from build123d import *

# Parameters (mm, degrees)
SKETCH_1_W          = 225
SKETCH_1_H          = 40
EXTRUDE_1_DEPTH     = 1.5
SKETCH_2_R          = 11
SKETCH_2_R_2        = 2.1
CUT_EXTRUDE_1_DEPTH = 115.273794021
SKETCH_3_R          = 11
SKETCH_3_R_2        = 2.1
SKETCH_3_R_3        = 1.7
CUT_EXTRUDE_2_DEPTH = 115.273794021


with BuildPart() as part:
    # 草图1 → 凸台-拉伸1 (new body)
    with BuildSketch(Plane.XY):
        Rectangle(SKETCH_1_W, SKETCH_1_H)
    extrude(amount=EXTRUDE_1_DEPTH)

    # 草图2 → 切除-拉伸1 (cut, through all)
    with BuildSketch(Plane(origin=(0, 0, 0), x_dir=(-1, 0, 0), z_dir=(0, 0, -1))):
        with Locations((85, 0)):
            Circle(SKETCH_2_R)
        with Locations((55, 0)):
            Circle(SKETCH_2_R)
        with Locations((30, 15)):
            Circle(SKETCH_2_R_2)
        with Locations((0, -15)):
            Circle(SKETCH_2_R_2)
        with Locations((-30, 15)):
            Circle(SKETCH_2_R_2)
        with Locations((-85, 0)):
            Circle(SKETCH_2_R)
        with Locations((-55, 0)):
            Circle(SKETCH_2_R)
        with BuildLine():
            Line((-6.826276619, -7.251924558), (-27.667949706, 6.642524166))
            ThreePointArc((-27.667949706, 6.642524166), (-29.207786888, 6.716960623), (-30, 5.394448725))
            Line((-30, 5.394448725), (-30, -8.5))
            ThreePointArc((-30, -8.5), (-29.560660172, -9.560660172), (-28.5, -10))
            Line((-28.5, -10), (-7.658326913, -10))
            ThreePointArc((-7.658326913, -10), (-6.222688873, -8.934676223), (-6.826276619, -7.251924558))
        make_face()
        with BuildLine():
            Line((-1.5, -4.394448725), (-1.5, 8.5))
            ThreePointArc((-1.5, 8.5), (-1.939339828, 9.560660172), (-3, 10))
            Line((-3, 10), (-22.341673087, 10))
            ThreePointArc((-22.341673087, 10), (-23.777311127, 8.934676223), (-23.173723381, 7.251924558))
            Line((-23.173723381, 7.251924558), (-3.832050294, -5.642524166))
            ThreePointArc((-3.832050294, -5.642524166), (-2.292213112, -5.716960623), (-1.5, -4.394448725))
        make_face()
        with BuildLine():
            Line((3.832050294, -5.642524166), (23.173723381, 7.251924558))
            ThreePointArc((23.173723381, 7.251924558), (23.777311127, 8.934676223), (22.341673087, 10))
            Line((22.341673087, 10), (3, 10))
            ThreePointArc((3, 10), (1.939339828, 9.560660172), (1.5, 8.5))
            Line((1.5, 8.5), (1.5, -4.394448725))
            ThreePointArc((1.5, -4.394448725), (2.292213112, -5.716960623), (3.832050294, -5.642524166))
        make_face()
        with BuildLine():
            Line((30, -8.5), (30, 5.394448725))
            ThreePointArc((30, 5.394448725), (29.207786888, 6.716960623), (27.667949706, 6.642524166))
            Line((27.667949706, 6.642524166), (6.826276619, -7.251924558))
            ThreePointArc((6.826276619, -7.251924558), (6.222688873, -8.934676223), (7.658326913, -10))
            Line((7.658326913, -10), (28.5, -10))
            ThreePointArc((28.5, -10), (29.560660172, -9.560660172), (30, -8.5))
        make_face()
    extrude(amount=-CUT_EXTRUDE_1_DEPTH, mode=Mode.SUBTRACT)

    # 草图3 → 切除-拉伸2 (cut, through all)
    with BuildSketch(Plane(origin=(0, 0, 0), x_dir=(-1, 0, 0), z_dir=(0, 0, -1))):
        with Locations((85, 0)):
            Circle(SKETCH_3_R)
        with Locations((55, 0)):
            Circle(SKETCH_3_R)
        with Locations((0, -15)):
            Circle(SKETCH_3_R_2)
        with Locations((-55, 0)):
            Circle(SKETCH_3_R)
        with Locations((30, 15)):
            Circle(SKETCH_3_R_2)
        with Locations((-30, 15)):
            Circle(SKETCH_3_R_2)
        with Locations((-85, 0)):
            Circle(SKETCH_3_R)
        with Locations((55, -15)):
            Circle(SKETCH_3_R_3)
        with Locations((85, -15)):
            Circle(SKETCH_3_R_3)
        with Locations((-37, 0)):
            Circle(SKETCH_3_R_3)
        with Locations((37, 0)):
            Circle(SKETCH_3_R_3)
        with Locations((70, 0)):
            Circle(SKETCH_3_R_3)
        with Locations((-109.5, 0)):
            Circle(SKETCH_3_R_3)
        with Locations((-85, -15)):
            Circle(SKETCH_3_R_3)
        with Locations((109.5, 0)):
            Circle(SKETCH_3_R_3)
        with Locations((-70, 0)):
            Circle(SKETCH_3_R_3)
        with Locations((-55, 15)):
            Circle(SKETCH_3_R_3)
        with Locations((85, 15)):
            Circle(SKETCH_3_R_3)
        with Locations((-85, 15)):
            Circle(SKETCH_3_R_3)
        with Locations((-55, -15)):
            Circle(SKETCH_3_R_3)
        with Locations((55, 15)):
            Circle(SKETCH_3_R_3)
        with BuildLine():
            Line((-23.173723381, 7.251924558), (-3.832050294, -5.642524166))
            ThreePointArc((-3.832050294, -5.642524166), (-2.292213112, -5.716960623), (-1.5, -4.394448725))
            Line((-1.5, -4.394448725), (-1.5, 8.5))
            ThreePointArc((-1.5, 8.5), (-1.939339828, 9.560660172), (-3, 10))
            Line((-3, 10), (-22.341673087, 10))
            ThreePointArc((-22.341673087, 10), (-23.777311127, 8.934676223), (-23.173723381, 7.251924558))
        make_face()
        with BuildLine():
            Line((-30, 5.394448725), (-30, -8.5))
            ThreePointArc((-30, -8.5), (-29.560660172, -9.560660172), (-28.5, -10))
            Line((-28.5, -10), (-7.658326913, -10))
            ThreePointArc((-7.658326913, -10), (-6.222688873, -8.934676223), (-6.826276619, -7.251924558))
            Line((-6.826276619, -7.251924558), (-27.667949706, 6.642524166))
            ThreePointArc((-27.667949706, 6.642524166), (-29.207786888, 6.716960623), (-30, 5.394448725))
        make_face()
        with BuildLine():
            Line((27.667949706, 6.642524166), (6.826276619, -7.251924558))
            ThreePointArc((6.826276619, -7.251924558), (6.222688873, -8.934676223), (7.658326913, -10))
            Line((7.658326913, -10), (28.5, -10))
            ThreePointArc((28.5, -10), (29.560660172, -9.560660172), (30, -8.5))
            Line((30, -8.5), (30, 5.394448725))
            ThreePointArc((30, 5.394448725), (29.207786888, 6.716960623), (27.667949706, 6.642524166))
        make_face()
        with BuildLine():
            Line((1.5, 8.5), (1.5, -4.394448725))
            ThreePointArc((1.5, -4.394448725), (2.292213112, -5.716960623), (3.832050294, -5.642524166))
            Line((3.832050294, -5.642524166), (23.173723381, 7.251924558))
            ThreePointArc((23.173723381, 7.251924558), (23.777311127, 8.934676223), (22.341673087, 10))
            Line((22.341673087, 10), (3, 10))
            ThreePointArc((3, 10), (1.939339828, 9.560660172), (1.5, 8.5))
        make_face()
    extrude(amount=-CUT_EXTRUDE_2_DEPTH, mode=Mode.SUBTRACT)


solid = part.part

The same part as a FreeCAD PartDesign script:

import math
import FreeCAD as App
import Part
import Sketcher

V = App.Vector
Q = App.Units.Quantity

doc = App.newDocument("Part")
body = doc.addObject("PartDesign::Body", "Body")

sketch1 = body.newObject("Sketcher::SketchObject", "Sketch")
sketch1.AttachmentSupport = (doc.getObject("XY_Plane"), [""])
sketch1.MapMode = "FlatFace"
sketch1.addGeometry([
    Part.LineSegment(V(-112, 20, 0), V(-112, -20, 0)),
    Part.LineSegment(V(-112, -20, 0), V(112, -20, 0)),
    Part.LineSegment(V(112, -20, 0), V(112, 20, 0)),
    Part.LineSegment(V(112, 20, 0), V(-112, 20, 0)),
], False)
sketch1.addConstraint([
    Sketcher.Constraint("Coincident", 0, 2, 1, 1),
    Sketcher.Constraint("Coincident", 1, 2, 2, 1),
    Sketcher.Constraint("Coincident", 2, 2, 3, 1),
    Sketcher.Constraint("Coincident", 3, 2, 0, 1),
    Sketcher.Constraint("Vertical", 0),
    Sketcher.Constraint("Horizontal", 1),
    Sketcher.Constraint("Vertical", 2),
    Sketcher.Constraint("Horizontal", 3),
    Sketcher.Constraint("Symmetric", 0, 2, 2, 2, -1, 1),
    Sketcher.Constraint("DistanceX", 1, 1, 1, 2, Q("225 mm")),
    Sketcher.Constraint("DistanceY", 0, 2, 0, 1, Q("40 mm")),
])
pad1 = body.newObject("PartDesign::Pad", "Pad")
pad1.Profile = sketch1
pad1.Length = 1.5

sketch2 = body.newObject("Sketcher::SketchObject", "Sketch001")
sketch2.AttachmentSupport = (doc.getObject("XY_Plane"), [""])
sketch2.MapMode = "FlatFace"
sketch2.addGeometry([
    Part.Circle(V(-85, 0, 0), V(0, 0, 1), 11),
    Part.Circle(V(-55, 0, 0), V(0, 0, 1), 11),
    Part.Circle(V(-30, 15, 0), V(0, 0, 1), 2.1),
    Part.Circle(V(0, -15, 0), V(0, 0, 1), 2.1),
    Part.Circle(V(30, 15, 0), V(0, 0, 1), 2.1),
    Part.Circle(V(85, 0, 0), V(0, 0, 1), 11),
    Part.Circle(V(55, 0, 0), V(0, 0, 1), 11),
    Part.LineSegment(V(6.8, -7.3, 0), V(27.7, 6.6, 0)),
    Part.ArcOfCircle(Part.Circle(V(28.5, 5.4, 0), V(0, 0, 1), 1.5), math.radians(0), math.radians(124)),
    Part.LineSegment(V(30, 5.4, 0), V(30, -8.5, 0)),
    Part.ArcOfCircle(Part.Circle(V(28.5, -8.5, 0), V(0, 0, 1), 1.5), math.radians(-90), math.radians(0)),
    Part.LineSegment(V(28.5, -10, 0), V(7.7, -10, 0)),
    Part.ArcOfCircle(Part.Circle(V(7.7, -8.5, 0), V(0, 0, 1), 1.5), math.radians(124), math.radians(270)),
    Part.LineSegment(V(1.5, -4.4, 0), V(1.5, 8.5, 0)),
    Part.ArcOfCircle(Part.Circle(V(3, 8.5, 0), V(0, 0, 1), 1.5), math.radians(90), math.radians(180)),
    Part.LineSegment(V(3, 10, 0), V(22.3, 10, 0)),
    Part.ArcOfCircle(Part.Circle(V(22.3, 8.5, 0), V(0, 0, 1), 1.5), math.radians(-56), math.radians(90)),
    Part.LineSegment(V(23.2, 7.3, 0), V(3.8, -5.6, 0)),
    Part.ArcOfCircle(Part.Circle(V(3, -4.4, 0), V(0, 0, 1), 1.5), math.radians(180), math.radians(304)),
    Part.LineSegment(V(-3.8, -5.6, 0), V(-23.2, 7.3, 0)),
    Part.ArcOfCircle(Part.Circle(V(-22.3, 8.5, 0), V(0, 0, 1), 1.5), math.radians(90), math.radians(236)),
    Part.LineSegment(V(-22.3, 10, 0), V(-3, 10, 0)),
    Part.ArcOfCircle(Part.Circle(V(-3, 8.5, 0), V(0, 0, 1), 1.5), math.radians(0), math.radians(90)),
    Part.LineSegment(V(-1.5, 8.5, 0), V(-1.5, -4.4, 0)),
    Part.ArcOfCircle(Part.Circle(V(-3, -4.4, 0), V(0, 0, 1), 1.5), math.radians(-124), math.radians(0)),
    Part.LineSegment(V(-30, -8.5, 0), V(-30, 5.4, 0)),
    Part.ArcOfCircle(Part.Circle(V(-28.5, 5.4, 0), V(0, 0, 1), 1.5), math.radians(56), math.radians(180)),
    Part.LineSegment(V(-27.7, 6.6, 0), V(-6.8, -7.3, 0)),
    Part.ArcOfCircle(Part.Circle(V(-7.7, -8.5, 0), V(0, 0, 1), 1.5), math.radians(-90), math.radians(56)),
    Part.LineSegment(V(-7.7, -10, 0), V(-28.5, -10, 0)),
    Part.ArcOfCircle(Part.Circle(V(-28.5, -8.5, 0), V(0, 0, 1), 1.5), math.radians(180), math.radians(270)),
], False)
sketch2.addConstraint([
    Sketcher.Constraint("Tangent", 7, 2, 8, 2),
    Sketcher.Constraint("Tangent", 8, 1, 9, 1),
    Sketcher.Constraint("Tangent", 9, 2, 10, 2),
    Sketcher.Constraint("Tangent", 10, 1, 11, 1),
    Sketcher.Constraint("Tangent", 11, 2, 12, 2),
    Sketcher.Constraint("Tangent", 12, 1, 7, 1),
    Sketcher.Constraint("Tangent", 13, 2, 14, 2),
    Sketcher.Constraint("Tangent", 14, 1, 15, 1),
    Sketcher.Constraint("Tangent", 15, 2, 16, 2),
    Sketcher.Constraint("Tangent", 16, 1, 17, 1),
    Sketcher.Constraint("Tangent", 17, 2, 18, 2),
    Sketcher.Constraint("Tangent", 18, 1, 13, 1),
    Sketcher.Constraint("Tangent", 19, 2, 20, 2),
    Sketcher.Constraint("Tangent", 20, 1, 21, 1),
    Sketcher.Constraint("Tangent", 21, 2, 22, 2),
    Sketcher.Constraint("Tangent", 22, 1, 23, 1),
    Sketcher.Constraint("Tangent", 23, 2, 24, 2),
    Sketcher.Constraint("Tangent", 24, 1, 19, 1),
    Sketcher.Constraint("Tangent", 25, 2, 26, 2),
    Sketcher.Constraint("Tangent", 26, 1, 27, 1),
    Sketcher.Constraint("Tangent", 27, 2, 28, 2),
    Sketcher.Constraint("Tangent", 28, 1, 29, 1),
    Sketcher.Constraint("Tangent", 29, 2, 30, 2),
    Sketcher.Constraint("Tangent", 30, 1, 25, 1),
    Sketcher.Constraint("Vertical", 9),
    Sketcher.Constraint("Horizontal", 11),
    Sketcher.Constraint("Vertical", 13),
    Sketcher.Constraint("Horizontal", 15),
    Sketcher.Constraint("Horizontal", 21),
    Sketcher.Constraint("Vertical", 23),
    Sketcher.Constraint("Vertical", 25),
    Sketcher.Constraint("Horizontal", 29),
    Sketcher.Constraint("Equal", 0, 1),
    Sketcher.Constraint("Equal", 2, 3),
    Sketcher.Constraint("Equal", 3, 4),
    Sketcher.Constraint("Equal", 1, 5),
    Sketcher.Constraint("Equal", 5, 6),
    Sketcher.Constraint("Equal", 8, 10),
    Sketcher.Constraint("Equal", 10, 12),
    Sketcher.Constraint("Equal", 12, 14),
    Sketcher.Constraint("Equal", 14, 16),
    Sketcher.Constraint("Equal", 16, 18),
    Sketcher.Constraint("Equal", 18, 20),
    Sketcher.Constraint("Equal", 20, 22),
    Sketcher.Constraint("Equal", 22, 24),
    Sketcher.Constraint("Equal", 24, 26),
    Sketcher.Constraint("Equal", 26, 28),
    Sketcher.Constraint("Equal", 28, 30),
    Sketcher.Constraint("Symmetric", 0, 3, 5, 3, -1, 1),
    Sketcher.Constraint("Symmetric", 1, 3, 6, 3, -1, 1),
    Sketcher.Constraint("Symmetric", 2, 3, 4, 3, -2),
    Sketcher.Constraint("Symmetric", 16, 3, 20, 3, -2),
    Sketcher.Constraint("Symmetric", 18, 3, 24, 3, -2),
    Sketcher.Constraint("Symmetric", 8, 3, 26, 3, -2),
    Sketcher.Constraint("Symmetric", 12, 3, 28, 3, -2),
    Sketcher.Constraint("PointOnObject", 0, 3, -1),
    Sketcher.Constraint("PointOnObject", 1, 3, -1),
    Sketcher.Constraint("PointOnObject", 3, 3, -2),
    Sketcher.Constraint("Parallel", 7, 17),
    Sketcher.Constraint("Vertical", 4, 3, 8, 1),
    Sketcher.Constraint("Diameter", 0, Q("22 mm")),
    Sketcher.Constraint("Diameter", 2, Q("4.2 mm")),
    Sketcher.Constraint("Radius", 8, Q("1.5 mm")),
    Sketcher.Constraint("DistanceX", 0, 3, -1, 1, Q("85 mm")),
    Sketcher.Constraint("DistanceX", 1, 3, -1, 1, Q("55 mm")),
    Sketcher.Constraint("DistanceX", 2, 3, -1, 1, Q("30 mm")),
    Sketcher.Constraint("DistanceY", -1, 1, 2, 3, Q("15 mm")),
    Sketcher.Constraint("DistanceY", 3, 3, -1, 1, Q("15 mm")),
    Sketcher.Constraint("DistanceX", -1, 1, 14, 3, Q("3 mm")),
    Sketcher.Constraint("DistanceY", 10, 1, -1, 1, Q("10 mm")),
    Sketcher.Constraint("DistanceY", -1, 1, 14, 1, Q("10 mm")),
    Sketcher.Constraint("Distance", 17, Q("23.245798 mm")),
    Sketcher.Constraint("DistanceY", 9, 2, 9, 1, Q("13.894449 mm")),
    Sketcher.Constraint("DistanceY", 13, 1, 13, 2, Q("12.894449 mm")),
])
pocket1 = body.newObject("PartDesign::Pocket", "Pocket")
pocket1.Profile = sketch2
pocket1.Type = "ThroughAll"
pocket1.Reversed = True

sketch3 = body.newObject("Sketcher::SketchObject", "Sketch002")
sketch3.AttachmentSupport = (doc.getObject("XY_Plane"), [""])
sketch3.MapMode = "FlatFace"
sketch3.addGeometry([
    Part.Circle(V(-85, 0, 0), V(0, 0, 1), 11),
    Part.Circle(V(-55, 0, 0), V(0, 0, 1), 11),
    Part.Circle(V(0, -15, 0), V(0, 0, 1), 2.1),
    Part.Circle(V(55, 0, 0), V(0, 0, 1), 11),
    Part.Circle(V(-30, 15, 0), V(0, 0, 1), 2.1),
    Part.Circle(V(30, 15, 0), V(0, 0, 1), 2.1),
    Part.Circle(V(85, 0, 0), V(0, 0, 1), 11),
    Part.Circle(V(-55, -15, 0), V(0, 0, 1), 1.7),
    Part.Circle(V(-85, -15, 0), V(0, 0, 1), 1.7),
    Part.Circle(V(37, 0, 0), V(0, 0, 1), 1.7),
    Part.Circle(V(-37, 0, 0), V(0, 0, 1), 1.7),
    Part.Circle(V(-70, 0, 0), V(0, 0, 1), 1.7),
    Part.Circle(V(109.5, 0, 0), V(0, 0, 1), 1.7),
    Part.Circle(V(85, -15, 0), V(0, 0, 1), 1.7),
    Part.Circle(V(-109.5, 0, 0), V(0, 0, 1), 1.7),
    Part.Circle(V(70, 0, 0), V(0, 0, 1), 1.7),
    Part.Circle(V(55, 15, 0), V(0, 0, 1), 1.7),
    Part.Circle(V(-85, 15, 0), V(0, 0, 1), 1.7),
    Part.Circle(V(85, 15, 0), V(0, 0, 1), 1.7),
    Part.Circle(V(55, -15, 0), V(0, 0, 1), 1.7),
    Part.Circle(V(-55, 15, 0), V(0, 0, 1), 1.7),
    Part.LineSegment(V(23.2, 7.3, 0), V(3.8, -5.6, 0)),
    Part.ArcOfCircle(Part.Circle(V(3, -4.4, 0), V(0, 0, 1), 1.5), math.radians(180), math.radians(304)),
    Part.LineSegment(V(1.5, -4.4, 0), V(1.5, 8.5, 0)),
    Part.ArcOfCircle(Part.Circle(V(3, 8.5, 0), V(0, 0, 1), 1.5), math.radians(90), math.radians(180)),
    Part.LineSegment(V(3, 10, 0), V(22.3, 10, 0)),
    Part.ArcOfCircle(Part.Circle(V(22.3, 8.5, 0), V(0, 0, 1), 1.5), math.radians(-56), math.radians(90)),
    Part.LineSegment(V(30, 5.4, 0), V(30, -8.5, 0)),
    Part.ArcOfCircle(Part.Circle(V(28.5, -8.5, 0), V(0, 0, 1), 1.5), math.radians(-90), math.radians(0)),
    Part.LineSegment(V(28.5, -10, 0), V(7.7, -10, 0)),
    Part.ArcOfCircle(Part.Circle(V(7.7, -8.5, 0), V(0, 0, 1), 1.5), math.radians(124), math.radians(270)),
    Part.LineSegment(V(6.8, -7.3, 0), V(27.7, 6.6, 0)),
    Part.ArcOfCircle(Part.Circle(V(28.5, 5.4, 0), V(0, 0, 1), 1.5), math.radians(0), math.radians(124)),
    Part.LineSegment(V(-27.7, 6.6, 0), V(-6.8, -7.3, 0)),
    Part.ArcOfCircle(Part.Circle(V(-7.7, -8.5, 0), V(0, 0, 1), 1.5), math.radians(-90), math.radians(56)),
    Part.LineSegment(V(-7.7, -10, 0), V(-28.5, -10, 0)),
    Part.ArcOfCircle(Part.Circle(V(-28.5, -8.5, 0), V(0, 0, 1), 1.5), math.radians(180), math.radians(270)),
    Part.LineSegment(V(-30, -8.5, 0), V(-30, 5.4, 0)),
    Part.ArcOfCircle(Part.Circle(V(-28.5, 5.4, 0), V(0, 0, 1), 1.5), math.radians(56), math.radians(180)),
    Part.LineSegment(V(-1.5, 8.5, 0), V(-1.5, -4.4, 0)),
    Part.ArcOfCircle(Part.Circle(V(-3, -4.4, 0), V(0, 0, 1), 1.5), math.radians(-124), math.radians(0)),
    Part.LineSegment(V(-3.8, -5.6, 0), V(-23.2, 7.3, 0)),
    Part.ArcOfCircle(Part.Circle(V(-22.3, 8.5, 0), V(0, 0, 1), 1.5), math.radians(90), math.radians(236)),
    Part.LineSegment(V(-22.3, 10, 0), V(-3, 10, 0)),
    Part.ArcOfCircle(Part.Circle(V(-3, 8.5, 0), V(0, 0, 1), 1.5), math.radians(0), math.radians(90)),
], False)
sketch3.addConstraint([
    Sketcher.Constraint("Tangent", 21, 2, 22, 2),
    Sketcher.Constraint("Tangent", 22, 1, 23, 1),
    Sketcher.Constraint("Tangent", 23, 2, 24, 2),
    Sketcher.Constraint("Tangent", 24, 1, 25, 1),
    Sketcher.Constraint("Tangent", 25, 2, 26, 2),
    Sketcher.Constraint("Tangent", 26, 1, 21, 1),
    Sketcher.Constraint("Tangent", 27, 2, 28, 2),
    Sketcher.Constraint("Tangent", 28, 1, 29, 1),
    Sketcher.Constraint("Tangent", 29, 2, 30, 2),
    Sketcher.Constraint("Tangent", 30, 1, 31, 1),
    Sketcher.Constraint("Tangent", 31, 2, 32, 2),
    Sketcher.Constraint("Tangent", 32, 1, 27, 1),
    Sketcher.Constraint("Tangent", 33, 2, 34, 2),
    Sketcher.Constraint("Tangent", 34, 1, 35, 1),
    Sketcher.Constraint("Tangent", 35, 2, 36, 2),
    Sketcher.Constraint("Tangent", 36, 1, 37, 1),
    Sketcher.Constraint("Tangent", 37, 2, 38, 2),
    Sketcher.Constraint("Tangent", 38, 1, 33, 1),
    Sketcher.Constraint("Tangent", 39, 2, 40, 2),
    Sketcher.Constraint("Tangent", 40, 1, 41, 1),
    Sketcher.Constraint("Tangent", 41, 2, 42, 2),
    Sketcher.Constraint("Tangent", 42, 1, 43, 1),
    Sketcher.Constraint("Tangent", 43, 2, 44, 2),
    Sketcher.Constraint("Tangent", 44, 1, 39, 1),
    Sketcher.Constraint("Vertical", 23),
    Sketcher.Constraint("Horizontal", 25),
    Sketcher.Constraint("Vertical", 27),
    Sketcher.Constraint("Horizontal", 29),
    Sketcher.Constraint("Horizontal", 35),
    Sketcher.Constraint("Vertical", 37),
    Sketcher.Constraint("Vertical", 39),
    Sketcher.Constraint("Horizontal", 43),
    Sketcher.Constraint("Equal", 0, 1),
    Sketcher.Constraint("Equal", 1, 3),
    Sketcher.Constraint("Equal", 2, 4),
    Sketcher.Constraint("Equal", 4, 5),
    Sketcher.Constraint("Equal", 3, 6),
    Sketcher.Constraint("Equal", 7, 8),
    Sketcher.Constraint("Equal", 8, 9),
    Sketcher.Constraint("Equal", 9, 10),
    Sketcher.Constraint("Equal", 10, 11),
    Sketcher.Constraint("Equal", 11, 12),
    Sketcher.Constraint("Equal", 12, 13),
    Sketcher.Constraint("Equal", 13, 14),
    Sketcher.Constraint("Equal", 14, 15),
    Sketcher.Constraint("Equal", 15, 16),
    Sketcher.Constraint("Equal", 16, 17),
    Sketcher.Constraint("Equal", 17, 18),
    Sketcher.Constraint("Equal", 18, 19),
    Sketcher.Constraint("Equal", 19, 20),
    Sketcher.Constraint("Equal", 22, 24),
    Sketcher.Constraint("Equal", 24, 26),
    Sketcher.Constraint("Equal", 26, 28),
    Sketcher.Constraint("Equal", 28, 30),
    Sketcher.Constraint("Equal", 30, 32),
    Sketcher.Constraint("Equal", 32, 34),
    Sketcher.Constraint("Equal", 34, 36),
    Sketcher.Constraint("Equal", 36, 38),
    Sketcher.Constraint("Equal", 38, 40),
    Sketcher.Constraint("Equal", 40, 42),
    Sketcher.Constraint("Equal", 42, 44),
    Sketcher.Constraint("Symmetric", 1, 3, 3, 3, -1, 1),
    Sketcher.Constraint("Symmetric", 0, 3, 6, 3, -1, 1),
    Sketcher.Constraint("Symmetric", 9, 3, 10, 3, -1, 1),
    Sketcher.Constraint("Symmetric", 12, 3, 14, 3, -1, 1),
    Sketcher.Constraint("Symmetric", 11, 3, 15, 3, -1, 1),
    Sketcher.Constraint("Symmetric", 7, 3, 16, 3, -1, 1),
    Sketcher.Constraint("Symmetric", 13, 3, 17, 3, -1, 1),
    Sketcher.Constraint("Symmetric", 8, 3, 18, 3, -1, 1),
    Sketcher.Constraint("Symmetric", 19, 3, 20, 3, -1, 1),
    Sketcher.Constraint("Symmetric", 4, 3, 5, 3, -2),
    Sketcher.Constraint("Symmetric", 8, 3, 13, 3, -2),
    Sketcher.Constraint("Symmetric", 7, 3, 19, 3, -2),
    Sketcher.Constraint("Symmetric", 30, 3, 34, 3, -2),
    Sketcher.Constraint("Symmetric", 32, 3, 38, 3, -2),
    Sketcher.Constraint("Symmetric", 22, 3, 40, 3, -2),
    Sketcher.Constraint("Symmetric", 26, 3, 42, 3, -2),
    Sketcher.Constraint("PointOnObject", 0, 3, -1),
    Sketcher.Constraint("PointOnObject", 1, 3, -1),
    Sketcher.Constraint("PointOnObject", 2, 3, -2),
    Sketcher.Constraint("PointOnObject", 9, 3, -1),
    Sketcher.Constraint("PointOnObject", 11, 3, -1),
    Sketcher.Constraint("PointOnObject", 12, 3, -1),
    Sketcher.Constraint("Parallel", 21, 31),
    Sketcher.Constraint("Horizontal", 2, 3, 7, 3),
    Sketcher.Constraint("Horizontal", 7, 3, 8, 3),
    Sketcher.Constraint("Horizontal", 5, 3, 16, 3),
    Sketcher.Constraint("Vertical", 1, 3, 7, 3),
    Sketcher.Constraint("Vertical", 0, 3, 8, 3),
    Sketcher.Constraint("Vertical", 5, 3, 27, 2),
    Sketcher.Constraint("Diameter", 0, Q("22 mm")),
    Sketcher.Constraint("Diameter", 2, Q("4.2 mm")),
    Sketcher.Constraint("Diameter", 7, Q("3.4 mm")),
    Sketcher.Constraint("Radius", 22, Q("1.5 mm")),
    Sketcher.Constraint("DistanceX", 0, 3, -1, 1, Q("85 mm")),
    Sketcher.Constraint("DistanceX", 1, 3, -1, 1, Q("55 mm")),
    Sketcher.Constraint("DistanceY", 2, 3, -1, 1, Q("15 mm")),
    Sketcher.Constraint("DistanceX", 4, 3, -1, 1, Q("30 mm")),
    Sketcher.Constraint("DistanceX", -1, 1, 9, 3, Q("37 mm")),
    Sketcher.Constraint("DistanceX", 11, 3, -1, 1, Q("70 mm")),
    Sketcher.Constraint("DistanceX", -1, 1, 22, 3, Q("3 mm")),
    Sketcher.Constraint("DistanceY", -1, 1, 24, 1, Q("10 mm")),
    Sketcher.Constraint("DistanceY", 28, 1, -1, 1, Q("10 mm")),
    Sketcher.Constraint("DistanceX", -1, 1, 12, 3, Q("109.5 mm")),
    Sketcher.Constraint("Distance", 21, Q("23.245798 mm")),
    Sketcher.Constraint("DistanceY", 23, 1, 23, 2, Q("12.894449 mm")),
    Sketcher.Constraint("DistanceY", 27, 2, 27, 1, Q("13.894449 mm")),
])
pocket2 = body.newObject("PartDesign::Pocket", "Pocket001")
pocket2.Profile = sketch3
pocket2.Type = "ThroughAll"
pocket2.Reversed = True

doc.recompute()
